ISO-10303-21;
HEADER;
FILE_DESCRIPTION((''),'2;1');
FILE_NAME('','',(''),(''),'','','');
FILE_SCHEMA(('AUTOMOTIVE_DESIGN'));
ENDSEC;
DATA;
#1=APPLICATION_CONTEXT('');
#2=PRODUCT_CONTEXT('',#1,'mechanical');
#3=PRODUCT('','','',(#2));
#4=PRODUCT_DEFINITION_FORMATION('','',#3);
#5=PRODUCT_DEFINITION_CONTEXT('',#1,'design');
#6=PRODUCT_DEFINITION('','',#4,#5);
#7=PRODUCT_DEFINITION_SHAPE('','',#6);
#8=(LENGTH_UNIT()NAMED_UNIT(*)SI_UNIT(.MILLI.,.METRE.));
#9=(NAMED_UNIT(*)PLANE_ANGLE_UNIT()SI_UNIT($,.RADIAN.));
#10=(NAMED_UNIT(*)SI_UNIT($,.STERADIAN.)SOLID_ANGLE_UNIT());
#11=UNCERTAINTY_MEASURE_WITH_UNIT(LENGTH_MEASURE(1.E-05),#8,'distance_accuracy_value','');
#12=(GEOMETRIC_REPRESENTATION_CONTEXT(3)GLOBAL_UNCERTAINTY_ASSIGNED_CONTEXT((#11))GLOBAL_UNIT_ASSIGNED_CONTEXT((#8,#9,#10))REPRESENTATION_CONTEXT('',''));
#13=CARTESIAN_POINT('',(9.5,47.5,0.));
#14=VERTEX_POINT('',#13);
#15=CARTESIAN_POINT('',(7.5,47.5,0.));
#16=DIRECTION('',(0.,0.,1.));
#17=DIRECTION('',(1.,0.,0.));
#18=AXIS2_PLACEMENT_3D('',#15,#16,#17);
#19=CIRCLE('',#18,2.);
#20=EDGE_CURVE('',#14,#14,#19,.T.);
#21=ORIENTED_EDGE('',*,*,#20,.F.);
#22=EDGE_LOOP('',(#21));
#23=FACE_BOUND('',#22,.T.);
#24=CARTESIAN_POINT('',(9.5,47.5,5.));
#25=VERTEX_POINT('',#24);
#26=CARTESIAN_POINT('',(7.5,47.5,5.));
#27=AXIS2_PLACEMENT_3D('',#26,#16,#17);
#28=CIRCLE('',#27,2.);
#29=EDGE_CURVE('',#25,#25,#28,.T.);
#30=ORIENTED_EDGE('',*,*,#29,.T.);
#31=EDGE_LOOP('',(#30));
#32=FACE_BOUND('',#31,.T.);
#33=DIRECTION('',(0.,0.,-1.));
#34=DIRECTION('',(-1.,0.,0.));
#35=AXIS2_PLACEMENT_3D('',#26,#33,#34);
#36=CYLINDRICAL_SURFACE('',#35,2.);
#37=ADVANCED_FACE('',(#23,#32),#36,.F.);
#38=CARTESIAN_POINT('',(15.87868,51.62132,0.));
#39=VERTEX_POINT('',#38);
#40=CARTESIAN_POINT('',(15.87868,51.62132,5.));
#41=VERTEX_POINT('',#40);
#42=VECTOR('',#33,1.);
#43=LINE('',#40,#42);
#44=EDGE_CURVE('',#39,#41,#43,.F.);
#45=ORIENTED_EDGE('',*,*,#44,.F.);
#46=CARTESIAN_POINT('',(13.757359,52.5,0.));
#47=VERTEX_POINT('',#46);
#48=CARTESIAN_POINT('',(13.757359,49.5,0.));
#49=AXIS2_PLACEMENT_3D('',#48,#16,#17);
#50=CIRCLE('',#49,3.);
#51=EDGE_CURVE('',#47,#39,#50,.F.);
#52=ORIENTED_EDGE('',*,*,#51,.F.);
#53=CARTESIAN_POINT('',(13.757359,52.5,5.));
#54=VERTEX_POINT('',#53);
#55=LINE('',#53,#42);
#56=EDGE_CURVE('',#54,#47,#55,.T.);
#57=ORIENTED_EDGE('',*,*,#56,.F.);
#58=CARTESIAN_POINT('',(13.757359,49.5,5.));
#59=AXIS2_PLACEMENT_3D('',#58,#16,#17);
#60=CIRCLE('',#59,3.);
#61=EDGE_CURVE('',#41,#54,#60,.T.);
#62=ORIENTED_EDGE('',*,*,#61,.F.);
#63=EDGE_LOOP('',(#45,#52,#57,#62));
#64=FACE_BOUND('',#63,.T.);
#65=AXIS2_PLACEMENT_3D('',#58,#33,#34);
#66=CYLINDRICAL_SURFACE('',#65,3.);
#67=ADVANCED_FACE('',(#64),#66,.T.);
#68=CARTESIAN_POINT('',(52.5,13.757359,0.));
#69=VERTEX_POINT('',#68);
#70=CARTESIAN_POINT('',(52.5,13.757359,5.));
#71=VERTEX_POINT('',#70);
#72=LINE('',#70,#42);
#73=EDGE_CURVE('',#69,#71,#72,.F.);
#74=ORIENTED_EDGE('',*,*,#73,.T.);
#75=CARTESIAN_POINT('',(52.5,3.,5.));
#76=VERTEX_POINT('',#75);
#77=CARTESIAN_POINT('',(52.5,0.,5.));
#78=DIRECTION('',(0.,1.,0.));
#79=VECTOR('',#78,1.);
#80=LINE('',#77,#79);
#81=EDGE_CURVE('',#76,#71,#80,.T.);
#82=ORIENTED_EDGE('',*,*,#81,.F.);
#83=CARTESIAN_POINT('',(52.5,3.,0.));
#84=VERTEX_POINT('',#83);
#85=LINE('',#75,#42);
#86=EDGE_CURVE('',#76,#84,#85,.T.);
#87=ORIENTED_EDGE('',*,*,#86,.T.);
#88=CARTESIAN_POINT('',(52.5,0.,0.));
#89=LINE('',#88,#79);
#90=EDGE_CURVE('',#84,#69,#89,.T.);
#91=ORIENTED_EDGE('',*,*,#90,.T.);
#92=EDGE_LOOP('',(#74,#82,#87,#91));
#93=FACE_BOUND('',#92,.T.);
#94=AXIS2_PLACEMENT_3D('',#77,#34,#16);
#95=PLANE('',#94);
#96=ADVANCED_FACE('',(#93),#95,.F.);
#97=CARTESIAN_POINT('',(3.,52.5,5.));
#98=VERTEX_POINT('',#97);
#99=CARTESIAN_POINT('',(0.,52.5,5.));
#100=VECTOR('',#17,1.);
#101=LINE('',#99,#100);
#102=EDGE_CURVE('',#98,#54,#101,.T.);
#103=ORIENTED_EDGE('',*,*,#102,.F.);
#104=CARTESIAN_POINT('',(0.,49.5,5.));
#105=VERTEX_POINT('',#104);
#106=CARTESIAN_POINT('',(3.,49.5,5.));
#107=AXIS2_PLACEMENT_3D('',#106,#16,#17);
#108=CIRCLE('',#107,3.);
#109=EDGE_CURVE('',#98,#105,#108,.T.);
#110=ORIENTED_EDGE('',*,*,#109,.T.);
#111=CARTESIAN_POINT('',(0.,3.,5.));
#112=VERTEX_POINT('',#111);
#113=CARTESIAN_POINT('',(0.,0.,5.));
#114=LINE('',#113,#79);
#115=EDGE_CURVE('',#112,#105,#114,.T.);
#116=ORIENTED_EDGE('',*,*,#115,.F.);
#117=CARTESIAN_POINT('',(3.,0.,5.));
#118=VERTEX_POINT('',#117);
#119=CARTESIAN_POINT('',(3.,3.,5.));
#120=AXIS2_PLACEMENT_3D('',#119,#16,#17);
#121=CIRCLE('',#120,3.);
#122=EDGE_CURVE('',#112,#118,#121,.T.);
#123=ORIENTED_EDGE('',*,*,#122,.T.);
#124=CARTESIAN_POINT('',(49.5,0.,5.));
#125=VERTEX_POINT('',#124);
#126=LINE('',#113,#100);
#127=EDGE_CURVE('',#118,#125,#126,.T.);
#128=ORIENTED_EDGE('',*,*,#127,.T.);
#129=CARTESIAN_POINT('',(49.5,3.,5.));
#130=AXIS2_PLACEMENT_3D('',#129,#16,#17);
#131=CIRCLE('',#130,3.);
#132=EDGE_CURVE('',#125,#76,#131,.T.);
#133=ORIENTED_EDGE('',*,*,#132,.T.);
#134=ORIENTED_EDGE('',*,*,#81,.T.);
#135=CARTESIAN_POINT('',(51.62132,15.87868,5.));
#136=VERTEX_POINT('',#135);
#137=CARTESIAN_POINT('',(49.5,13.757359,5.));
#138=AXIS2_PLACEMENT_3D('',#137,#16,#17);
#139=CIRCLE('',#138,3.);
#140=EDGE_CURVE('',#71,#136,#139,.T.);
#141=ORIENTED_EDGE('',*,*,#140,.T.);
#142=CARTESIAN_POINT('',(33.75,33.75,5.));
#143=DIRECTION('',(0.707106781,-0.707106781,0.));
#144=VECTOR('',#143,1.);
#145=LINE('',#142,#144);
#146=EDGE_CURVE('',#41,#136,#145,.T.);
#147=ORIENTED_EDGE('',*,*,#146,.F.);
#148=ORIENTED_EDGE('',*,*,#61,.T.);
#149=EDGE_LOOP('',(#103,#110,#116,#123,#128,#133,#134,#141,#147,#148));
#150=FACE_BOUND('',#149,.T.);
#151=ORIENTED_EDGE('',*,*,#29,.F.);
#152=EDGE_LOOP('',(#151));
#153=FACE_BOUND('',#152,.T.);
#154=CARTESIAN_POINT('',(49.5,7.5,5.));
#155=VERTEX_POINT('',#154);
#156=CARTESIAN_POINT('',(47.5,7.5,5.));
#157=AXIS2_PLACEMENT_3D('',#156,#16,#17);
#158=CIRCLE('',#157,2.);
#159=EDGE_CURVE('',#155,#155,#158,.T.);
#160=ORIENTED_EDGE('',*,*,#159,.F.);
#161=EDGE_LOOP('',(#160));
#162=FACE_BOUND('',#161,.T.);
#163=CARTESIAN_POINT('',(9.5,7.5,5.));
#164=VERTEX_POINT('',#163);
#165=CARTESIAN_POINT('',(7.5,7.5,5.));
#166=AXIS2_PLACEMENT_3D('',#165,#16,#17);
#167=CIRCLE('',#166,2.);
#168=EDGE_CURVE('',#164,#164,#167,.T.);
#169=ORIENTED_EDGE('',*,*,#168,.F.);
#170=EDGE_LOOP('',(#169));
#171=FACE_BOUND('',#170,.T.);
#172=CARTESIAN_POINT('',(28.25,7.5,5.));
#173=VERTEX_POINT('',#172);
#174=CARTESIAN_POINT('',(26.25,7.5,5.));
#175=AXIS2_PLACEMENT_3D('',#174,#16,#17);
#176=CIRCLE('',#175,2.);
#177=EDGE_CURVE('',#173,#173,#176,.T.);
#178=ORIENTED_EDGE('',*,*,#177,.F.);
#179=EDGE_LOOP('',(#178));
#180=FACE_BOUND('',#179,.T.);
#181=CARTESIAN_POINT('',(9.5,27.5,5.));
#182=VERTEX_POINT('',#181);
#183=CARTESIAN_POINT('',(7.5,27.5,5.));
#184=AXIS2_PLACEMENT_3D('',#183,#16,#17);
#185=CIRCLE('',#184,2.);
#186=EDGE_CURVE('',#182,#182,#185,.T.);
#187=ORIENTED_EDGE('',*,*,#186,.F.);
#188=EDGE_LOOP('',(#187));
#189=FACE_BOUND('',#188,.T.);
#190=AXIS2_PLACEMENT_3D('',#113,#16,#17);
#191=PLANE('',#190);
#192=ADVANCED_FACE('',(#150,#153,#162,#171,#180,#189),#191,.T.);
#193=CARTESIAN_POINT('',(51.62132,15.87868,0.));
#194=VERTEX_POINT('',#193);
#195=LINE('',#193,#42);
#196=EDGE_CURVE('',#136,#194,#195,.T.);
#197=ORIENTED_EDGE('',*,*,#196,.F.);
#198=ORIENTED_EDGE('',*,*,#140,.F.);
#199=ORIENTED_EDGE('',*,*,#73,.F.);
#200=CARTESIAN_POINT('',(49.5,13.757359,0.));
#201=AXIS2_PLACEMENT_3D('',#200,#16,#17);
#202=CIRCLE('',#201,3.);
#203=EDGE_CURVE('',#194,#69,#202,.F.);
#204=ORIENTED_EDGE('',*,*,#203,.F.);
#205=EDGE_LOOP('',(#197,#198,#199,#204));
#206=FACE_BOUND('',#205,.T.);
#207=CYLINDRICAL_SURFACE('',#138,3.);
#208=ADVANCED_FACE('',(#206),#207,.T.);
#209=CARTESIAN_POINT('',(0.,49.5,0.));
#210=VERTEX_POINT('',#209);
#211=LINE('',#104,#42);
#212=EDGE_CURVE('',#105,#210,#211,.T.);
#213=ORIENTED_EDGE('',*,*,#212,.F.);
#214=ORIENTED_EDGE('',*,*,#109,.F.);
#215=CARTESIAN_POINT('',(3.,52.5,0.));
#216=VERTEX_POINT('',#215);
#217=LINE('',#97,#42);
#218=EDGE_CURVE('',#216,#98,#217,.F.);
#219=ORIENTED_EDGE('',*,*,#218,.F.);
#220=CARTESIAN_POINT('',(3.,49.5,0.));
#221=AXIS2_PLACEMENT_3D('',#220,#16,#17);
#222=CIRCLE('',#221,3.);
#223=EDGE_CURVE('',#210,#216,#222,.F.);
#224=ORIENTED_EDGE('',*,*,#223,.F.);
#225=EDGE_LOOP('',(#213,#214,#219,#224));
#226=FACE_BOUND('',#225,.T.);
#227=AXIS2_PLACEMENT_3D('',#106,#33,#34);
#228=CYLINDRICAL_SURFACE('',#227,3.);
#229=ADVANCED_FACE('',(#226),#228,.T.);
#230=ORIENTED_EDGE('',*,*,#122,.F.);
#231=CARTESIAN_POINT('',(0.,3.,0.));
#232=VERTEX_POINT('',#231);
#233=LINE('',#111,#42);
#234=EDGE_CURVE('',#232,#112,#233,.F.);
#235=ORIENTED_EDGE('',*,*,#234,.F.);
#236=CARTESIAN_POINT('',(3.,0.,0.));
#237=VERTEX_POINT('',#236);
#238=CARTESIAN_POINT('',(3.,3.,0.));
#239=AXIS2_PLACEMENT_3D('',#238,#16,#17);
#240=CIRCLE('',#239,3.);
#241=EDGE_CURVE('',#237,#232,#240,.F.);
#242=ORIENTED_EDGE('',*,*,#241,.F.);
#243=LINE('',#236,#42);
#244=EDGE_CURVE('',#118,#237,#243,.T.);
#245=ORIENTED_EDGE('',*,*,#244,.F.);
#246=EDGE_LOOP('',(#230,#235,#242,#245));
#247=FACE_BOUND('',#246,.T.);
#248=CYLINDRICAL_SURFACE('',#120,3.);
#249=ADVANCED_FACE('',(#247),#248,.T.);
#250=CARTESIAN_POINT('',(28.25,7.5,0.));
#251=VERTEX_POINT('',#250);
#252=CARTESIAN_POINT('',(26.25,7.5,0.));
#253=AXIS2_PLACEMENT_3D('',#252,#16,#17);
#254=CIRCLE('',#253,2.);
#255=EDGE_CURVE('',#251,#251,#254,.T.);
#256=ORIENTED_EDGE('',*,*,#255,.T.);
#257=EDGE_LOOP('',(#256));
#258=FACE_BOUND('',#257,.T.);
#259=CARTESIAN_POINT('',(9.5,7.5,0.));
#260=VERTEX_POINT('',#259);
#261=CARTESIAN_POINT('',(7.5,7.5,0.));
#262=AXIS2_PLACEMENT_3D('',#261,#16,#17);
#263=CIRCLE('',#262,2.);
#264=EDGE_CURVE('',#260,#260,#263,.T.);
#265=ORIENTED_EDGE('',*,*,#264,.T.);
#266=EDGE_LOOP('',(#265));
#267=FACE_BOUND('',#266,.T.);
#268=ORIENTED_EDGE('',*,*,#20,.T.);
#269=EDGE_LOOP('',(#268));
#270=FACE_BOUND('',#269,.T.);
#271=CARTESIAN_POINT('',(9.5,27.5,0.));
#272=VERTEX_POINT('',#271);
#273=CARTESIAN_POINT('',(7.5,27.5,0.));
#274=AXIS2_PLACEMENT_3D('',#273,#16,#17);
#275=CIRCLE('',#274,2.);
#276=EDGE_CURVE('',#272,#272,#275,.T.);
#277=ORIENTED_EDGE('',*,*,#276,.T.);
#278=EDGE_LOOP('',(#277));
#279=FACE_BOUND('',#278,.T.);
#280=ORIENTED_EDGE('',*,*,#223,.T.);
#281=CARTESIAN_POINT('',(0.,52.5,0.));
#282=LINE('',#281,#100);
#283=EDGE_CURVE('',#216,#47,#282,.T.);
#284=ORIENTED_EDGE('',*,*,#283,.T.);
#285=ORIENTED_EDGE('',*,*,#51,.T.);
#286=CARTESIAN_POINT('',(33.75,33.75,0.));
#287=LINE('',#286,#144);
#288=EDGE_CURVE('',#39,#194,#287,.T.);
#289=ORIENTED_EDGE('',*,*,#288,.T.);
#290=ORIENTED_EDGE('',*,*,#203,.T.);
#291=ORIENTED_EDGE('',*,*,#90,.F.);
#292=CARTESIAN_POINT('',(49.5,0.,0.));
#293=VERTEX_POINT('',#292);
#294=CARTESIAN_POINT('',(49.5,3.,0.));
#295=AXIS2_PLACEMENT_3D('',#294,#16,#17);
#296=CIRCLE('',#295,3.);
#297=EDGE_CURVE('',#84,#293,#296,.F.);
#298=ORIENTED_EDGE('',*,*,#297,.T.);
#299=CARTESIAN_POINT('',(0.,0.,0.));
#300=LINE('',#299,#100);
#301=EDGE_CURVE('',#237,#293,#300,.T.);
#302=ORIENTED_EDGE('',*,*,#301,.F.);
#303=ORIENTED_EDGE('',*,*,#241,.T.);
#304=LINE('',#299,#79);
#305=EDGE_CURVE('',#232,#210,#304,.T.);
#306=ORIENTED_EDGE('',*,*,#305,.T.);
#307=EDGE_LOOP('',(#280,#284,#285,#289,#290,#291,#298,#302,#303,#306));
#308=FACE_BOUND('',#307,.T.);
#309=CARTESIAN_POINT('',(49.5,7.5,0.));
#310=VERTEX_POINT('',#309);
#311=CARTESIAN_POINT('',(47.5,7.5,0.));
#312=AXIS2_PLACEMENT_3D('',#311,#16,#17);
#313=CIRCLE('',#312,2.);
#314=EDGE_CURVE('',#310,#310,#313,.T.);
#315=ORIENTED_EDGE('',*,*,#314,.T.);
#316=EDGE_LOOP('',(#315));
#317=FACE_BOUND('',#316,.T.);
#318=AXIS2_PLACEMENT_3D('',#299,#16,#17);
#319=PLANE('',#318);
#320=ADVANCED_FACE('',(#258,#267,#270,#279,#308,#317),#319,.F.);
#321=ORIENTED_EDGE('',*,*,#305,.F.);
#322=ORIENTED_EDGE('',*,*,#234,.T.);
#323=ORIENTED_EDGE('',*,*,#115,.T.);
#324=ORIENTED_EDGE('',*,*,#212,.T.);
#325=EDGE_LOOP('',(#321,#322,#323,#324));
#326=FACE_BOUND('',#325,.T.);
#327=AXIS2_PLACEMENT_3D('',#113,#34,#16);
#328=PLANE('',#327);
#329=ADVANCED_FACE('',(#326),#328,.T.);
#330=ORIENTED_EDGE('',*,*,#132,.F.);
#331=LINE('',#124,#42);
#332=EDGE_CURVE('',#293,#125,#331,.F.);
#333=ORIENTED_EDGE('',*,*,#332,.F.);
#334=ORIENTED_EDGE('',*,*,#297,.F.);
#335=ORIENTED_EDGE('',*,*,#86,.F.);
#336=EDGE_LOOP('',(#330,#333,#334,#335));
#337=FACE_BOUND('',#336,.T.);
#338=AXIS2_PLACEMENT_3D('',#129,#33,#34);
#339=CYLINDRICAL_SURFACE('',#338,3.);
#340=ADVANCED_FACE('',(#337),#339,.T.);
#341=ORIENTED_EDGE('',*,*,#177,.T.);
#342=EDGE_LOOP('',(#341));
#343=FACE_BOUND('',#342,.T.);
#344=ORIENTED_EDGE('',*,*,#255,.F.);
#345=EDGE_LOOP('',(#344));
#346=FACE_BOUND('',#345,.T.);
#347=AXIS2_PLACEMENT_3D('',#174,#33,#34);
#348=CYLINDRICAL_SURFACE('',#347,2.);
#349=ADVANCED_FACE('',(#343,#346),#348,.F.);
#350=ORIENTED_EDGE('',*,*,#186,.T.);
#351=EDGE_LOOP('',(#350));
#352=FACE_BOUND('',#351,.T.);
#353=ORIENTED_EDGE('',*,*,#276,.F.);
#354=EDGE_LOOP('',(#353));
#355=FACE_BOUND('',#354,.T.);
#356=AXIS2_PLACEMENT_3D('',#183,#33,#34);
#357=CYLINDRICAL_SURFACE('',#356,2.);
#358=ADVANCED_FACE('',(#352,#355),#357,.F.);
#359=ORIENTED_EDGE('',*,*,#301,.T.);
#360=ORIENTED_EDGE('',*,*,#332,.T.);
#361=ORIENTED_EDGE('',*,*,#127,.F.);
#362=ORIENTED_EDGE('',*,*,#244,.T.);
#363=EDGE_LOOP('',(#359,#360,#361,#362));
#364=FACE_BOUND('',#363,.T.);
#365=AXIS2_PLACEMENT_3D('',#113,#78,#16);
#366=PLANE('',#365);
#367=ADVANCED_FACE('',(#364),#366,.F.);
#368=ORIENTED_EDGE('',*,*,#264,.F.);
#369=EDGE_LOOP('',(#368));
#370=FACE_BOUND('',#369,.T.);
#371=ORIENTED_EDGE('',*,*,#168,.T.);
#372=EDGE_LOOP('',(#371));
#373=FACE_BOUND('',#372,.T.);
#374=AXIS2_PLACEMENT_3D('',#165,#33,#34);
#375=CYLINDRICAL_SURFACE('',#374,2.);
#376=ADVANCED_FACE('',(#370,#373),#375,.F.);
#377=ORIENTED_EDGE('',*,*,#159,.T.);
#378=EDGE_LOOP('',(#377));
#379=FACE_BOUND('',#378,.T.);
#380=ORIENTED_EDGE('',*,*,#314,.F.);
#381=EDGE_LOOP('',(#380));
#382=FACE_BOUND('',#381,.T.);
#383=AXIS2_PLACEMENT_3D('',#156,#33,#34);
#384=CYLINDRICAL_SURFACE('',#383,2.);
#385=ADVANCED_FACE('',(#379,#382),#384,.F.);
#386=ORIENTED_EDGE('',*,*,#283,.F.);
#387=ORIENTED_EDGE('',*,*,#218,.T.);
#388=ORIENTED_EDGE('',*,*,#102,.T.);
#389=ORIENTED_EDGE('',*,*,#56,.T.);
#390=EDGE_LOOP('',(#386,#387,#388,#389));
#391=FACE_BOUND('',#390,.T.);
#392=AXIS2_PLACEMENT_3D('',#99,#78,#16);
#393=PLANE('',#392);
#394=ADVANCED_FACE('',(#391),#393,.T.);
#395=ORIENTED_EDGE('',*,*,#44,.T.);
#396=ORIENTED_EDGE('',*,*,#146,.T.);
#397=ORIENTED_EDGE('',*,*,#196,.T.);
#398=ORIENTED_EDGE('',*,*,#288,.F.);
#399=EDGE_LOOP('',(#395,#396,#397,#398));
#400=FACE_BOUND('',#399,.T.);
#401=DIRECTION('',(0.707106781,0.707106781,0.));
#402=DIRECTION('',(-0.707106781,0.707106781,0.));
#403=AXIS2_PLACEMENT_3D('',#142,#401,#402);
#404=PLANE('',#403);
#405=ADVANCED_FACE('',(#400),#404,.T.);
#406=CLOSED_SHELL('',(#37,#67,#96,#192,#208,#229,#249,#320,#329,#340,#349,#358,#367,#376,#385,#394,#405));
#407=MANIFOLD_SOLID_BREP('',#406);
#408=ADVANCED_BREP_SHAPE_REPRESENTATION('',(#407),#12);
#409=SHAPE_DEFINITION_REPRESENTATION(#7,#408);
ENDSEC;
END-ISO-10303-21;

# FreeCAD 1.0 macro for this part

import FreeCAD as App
import Part
import Sketcher
Q = App.Units.Quantity


def edges_at(feature, points):
    """Names of the edges that pass closest to the given points."""
    edges = feature.Shape.Edges
    near = lambda p: min(range(len(edges)), key=lambda i: edges[i].distToShape(Part.Vertex(*p))[0])
    return sorted({f"Edge{near(p) + 1}" for p in points})


def add_polygon(sketch, points):
    """Adds a closed chain of lines whose ends are joined by coincident constraints."""
    first, n = sketch.GeometryCount, len(points)
    for a, b in zip(points, points[1:] + points[:1]):
        sketch.addGeometry(Part.LineSegment(App.Vector(*a, 0), App.Vector(*b, 0)), False)
    for i in range(n):
        sketch.addConstraint(Sketcher.Constraint("Coincident", first + i, 2, first + (i + 1) % n, 1))

doc = App.newDocument("Part")
body = doc.addObject("PartDesign::Body", "Body")

sketch1 = body.newObject("Sketcher::SketchObject", "Sketch")
sketch1.AttachmentSupport = (doc.getObject("XY_Plane"), [""])
sketch1.MapMode = "FlatFace"
add_polygon(sketch1, [(52.5, 15), (15, 52.5), (0, 52.5), (0, 0), (52.5, 0)])
sketch1.addGeometry(Part.Circle(App.Vector(7.5, 7.5, 0), App.Vector(0, 0, 1), 2), False)
sketch1.addGeometry(Part.Circle(App.Vector(26.25, 7.5, 0), App.Vector(0, 0, 1), 2), False)
sketch1.addGeometry(Part.Circle(App.Vector(47.5, 7.5, 0), App.Vector(0, 0, 1), 2), False)
sketch1.addGeometry(Part.Circle(App.Vector(7.5, 27.5, 0), App.Vector(0, 0, 1), 2), False)
sketch1.addGeometry(Part.Circle(App.Vector(7.5, 47.5, 0), App.Vector(0, 0, 1), 2), False)
sketch1.addConstraint([
    Sketcher.Constraint("Horizontal", 1),
    Sketcher.Constraint("Vertical", 2),
    Sketcher.Constraint("Horizontal", 3),
    Sketcher.Constraint("Vertical", 4),
    Sketcher.Constraint("Coincident", 2, 2, -1, 1),
    Sketcher.Constraint("Equal", 5, 6),
    Sketcher.Constraint("Equal", 6, 7),
    Sketcher.Constraint("Equal", 7, 8),
    Sketcher.Constraint("Equal", 8, 9),
    Sketcher.Constraint("Horizontal", 5, 3, 6, 3),
    Sketcher.Constraint("Horizontal", 6, 3, 7, 3),
    Sketcher.Constraint("Vertical", 5, 3, 8, 3),
    Sketcher.Constraint("Vertical", 8, 3, 9, 3),
    Sketcher.Constraint("Equal", 3, 2),
    Sketcher.Constraint("Equal", 1, 4),
    Sketcher.Constraint("Diameter", 5, Q("4 mm")),
    Sketcher.Constraint("DistanceX", 1, 2, 1, 1, Q("15 mm")),
    Sketcher.Constraint("DistanceX", 3, 1, 3, 2, Q("52.5 mm")),
    Sketcher.Constraint("DistanceX", 5, 3, 7, 3, Q("40 mm")),
    Sketcher.Constraint("DistanceY", 5, 3, 8, 3, Q("20 mm")),
    Sketcher.Constraint("DistanceY", 8, 3, 9, 3, Q("20 mm")),
    Sketcher.Constraint("DistanceY", 9, 3, 0, 2, Q("5 mm")),
    Sketcher.Constraint("DistanceX", 7, 3, 3, 2, Q("5 mm")),
    Sketcher.Constraint("DistanceX", -1, 1, 6, 3, Q("26.25 mm")),
])
pad1 = body.newObject("PartDesign::Pad", "Pad")
pad1.Profile = sketch1
pad1.Length = 5
doc.recompute()

fillet = body.newObject("PartDesign::Fillet", "Fillet")
fillet.Base = (pad1, edges_at(pad1, [
    (0, 0, 2.5),
    (0, 52.5, 2.5),
    (15, 52.5, 2.5),
    (52.5, 15, 2.5),
    (52.5, 0, 2.5),
]))
fillet.Radius = 3

doc.recompute()
